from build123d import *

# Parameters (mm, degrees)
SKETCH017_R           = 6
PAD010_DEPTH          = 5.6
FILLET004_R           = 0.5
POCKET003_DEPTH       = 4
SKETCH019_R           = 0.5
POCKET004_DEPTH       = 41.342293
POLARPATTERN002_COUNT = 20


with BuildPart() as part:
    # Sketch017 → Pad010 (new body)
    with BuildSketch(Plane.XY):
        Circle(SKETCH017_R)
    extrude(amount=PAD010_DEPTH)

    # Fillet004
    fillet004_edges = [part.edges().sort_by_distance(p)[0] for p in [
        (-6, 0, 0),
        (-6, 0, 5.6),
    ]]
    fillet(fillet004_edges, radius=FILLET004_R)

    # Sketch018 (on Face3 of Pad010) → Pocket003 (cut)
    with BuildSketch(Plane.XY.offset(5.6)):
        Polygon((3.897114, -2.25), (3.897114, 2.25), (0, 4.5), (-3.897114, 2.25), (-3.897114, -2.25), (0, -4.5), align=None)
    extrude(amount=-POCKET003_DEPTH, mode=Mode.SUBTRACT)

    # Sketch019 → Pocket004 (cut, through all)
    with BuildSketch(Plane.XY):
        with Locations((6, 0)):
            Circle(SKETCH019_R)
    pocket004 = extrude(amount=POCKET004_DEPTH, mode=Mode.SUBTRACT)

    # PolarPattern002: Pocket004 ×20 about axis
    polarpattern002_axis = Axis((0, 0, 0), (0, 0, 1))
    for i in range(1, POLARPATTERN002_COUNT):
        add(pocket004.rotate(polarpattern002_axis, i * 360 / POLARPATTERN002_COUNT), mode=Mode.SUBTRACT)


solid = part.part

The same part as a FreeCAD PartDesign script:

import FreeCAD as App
import Part
import Sketcher

V = App.Vector
Q = App.Units.Quantity


def edges_at(feature, points):
    """Names of the edges that pass closest to the given points."""
    edges = feature.Shape.Edges
    near = lambda p: min(range(len(edges)), key=lambda i: edges[i].distToShape(Part.Vertex(*p))[0])
    return sorted({f"Edge{near(p) + 1}" for p in points})


def add_polygon(sketch, points):
    """Adds a closed chain of lines whose ends are joined by coincident constraints."""
    first, n = sketch.GeometryCount, len(points)
    for a, b in zip(points, points[1:] + points[:1]):
        sketch.addGeometry(Part.LineSegment(App.Vector(*a, 0), App.Vector(*b, 0)), False)
    for i in range(n):
        sketch.addConstraint(Sketcher.Constraint("Coincident", first + i, 2, first + (i + 1) % n, 1))

doc = App.newDocument("Part")
body = doc.addObject("PartDesign::Body", "Body")

# Sketch on XY plane
sketch1 = doc.addObject("Sketcher::SketchObject", "Sketch")
body.addObject(sketch1)
sketch1.AttachmentSupport = (doc.XY_Plane, [""])
sketch1.MapMode = "FlatFace"
sketch1.addGeometry(Part.Circle(V(0, 0, 0), V(0, 0, 1), 6), False)
sketch1.addConstraint([
    Sketcher.Constraint("Coincident", 0, 3, -1, 1),
    Sketcher.Constraint("Diameter", 0, 12.0),
])
pad1 = doc.addObject("PartDesign::Pad", "Pad")
body.addObject(pad1)
pad1.Profile = sketch1
pad1.Length = 5.6
doc.recompute()

fillet = doc.addObject("PartDesign::Fillet", "Fillet")
body.addObject(fillet)
fillet.Base = (pad1, edges_at(pad1, [(-6, 0, 0), (-6, 0, 5.6)]))
fillet.Radius = 0.5

# Sketch on XY plane
sketch2 = doc.addObject("Sketcher::SketchObject", "Sketch001")
body.addObject(sketch2)
sketch2.AttachmentSupport = (doc.XY_Plane, [""])
sketch2.MapMode = "FlatFace"
sketch2.AttachmentOffset = App.Placement(V(0, 0, 5.6), App.Rotation())
add_polygon(sketch2, [(3.9, -2.2), (3.9, 2.2), (0, 4.5), (-3.9, 2.2), (-3.9, -2.2), (0, -4.5)])  # lines 0-5
sketch2.addConstraint([
    Sketcher.Constraint("Vertical", 0),
    Sketcher.Constraint("Vertical", 3),
    Sketcher.Constraint("Symmetric", 0, 2, 3, 2, -1, 1),
    Sketcher.Constraint("Symmetric", 1, 2, 4, 2, -1, 1),
    Sketcher.Constraint("PointOnObject", 1, 2, -2),
    Sketcher.Constraint("Parallel", 2, 5),
    Sketcher.Constraint("Horizontal", 0, 2, 2, 2),
    Sketcher.Constraint("Angle", 1, Q("149.999998 deg")),
    Sketcher.Constraint("DistanceY", 0, 1, 0, 2, 4.5),
    Sketcher.Constraint("DistanceY", 4, 2, 1, 2, 9.0),
])
pocket1 = doc.addObject("PartDesign::Pocket", "Pocket")
body.addObject(pocket1)
pocket1.Profile = sketch2
pocket1.Length = 4

# Sketch on XY plane
sketch3 = doc.addObject("Sketcher::SketchObject", "Sketch002")
body.addObject(sketch3)
sketch3.AttachmentSupport = (doc.XY_Plane, [""])
sketch3.MapMode = "FlatFace"
sketch3.addGeometry(Part.Circle(V(6, 0, 0), V(0, 0, 1), 0.5), False)
sketch3.addConstraint([
    Sketcher.Constraint("PointOnObject", 0, 3, -1),
    Sketcher.Constraint("Diameter", 0, 1.0),
    Sketcher.Constraint("DistanceX", -1, 1, 0, 3, 6.0),
])
pocket2 = doc.addObject("PartDesign::Pocket", "Pocket001")
body.addObject(pocket2)
pocket2.Profile = sketch3
pocket2.Type = "ThroughAll"
pocket2.Reversed = True
doc.recompute()

polarpattern = doc.addObject("PartDesign::PolarPattern", "PolarPattern")
body.addObject(polarpattern)
polarpattern.Originals = [pocket2]
polarpattern.Axis = (doc.Z_Axis, [""])
polarpattern.Angle = 360
polarpattern.Occurrences = 20
body.Tip = polarpattern

doc.recompute()
